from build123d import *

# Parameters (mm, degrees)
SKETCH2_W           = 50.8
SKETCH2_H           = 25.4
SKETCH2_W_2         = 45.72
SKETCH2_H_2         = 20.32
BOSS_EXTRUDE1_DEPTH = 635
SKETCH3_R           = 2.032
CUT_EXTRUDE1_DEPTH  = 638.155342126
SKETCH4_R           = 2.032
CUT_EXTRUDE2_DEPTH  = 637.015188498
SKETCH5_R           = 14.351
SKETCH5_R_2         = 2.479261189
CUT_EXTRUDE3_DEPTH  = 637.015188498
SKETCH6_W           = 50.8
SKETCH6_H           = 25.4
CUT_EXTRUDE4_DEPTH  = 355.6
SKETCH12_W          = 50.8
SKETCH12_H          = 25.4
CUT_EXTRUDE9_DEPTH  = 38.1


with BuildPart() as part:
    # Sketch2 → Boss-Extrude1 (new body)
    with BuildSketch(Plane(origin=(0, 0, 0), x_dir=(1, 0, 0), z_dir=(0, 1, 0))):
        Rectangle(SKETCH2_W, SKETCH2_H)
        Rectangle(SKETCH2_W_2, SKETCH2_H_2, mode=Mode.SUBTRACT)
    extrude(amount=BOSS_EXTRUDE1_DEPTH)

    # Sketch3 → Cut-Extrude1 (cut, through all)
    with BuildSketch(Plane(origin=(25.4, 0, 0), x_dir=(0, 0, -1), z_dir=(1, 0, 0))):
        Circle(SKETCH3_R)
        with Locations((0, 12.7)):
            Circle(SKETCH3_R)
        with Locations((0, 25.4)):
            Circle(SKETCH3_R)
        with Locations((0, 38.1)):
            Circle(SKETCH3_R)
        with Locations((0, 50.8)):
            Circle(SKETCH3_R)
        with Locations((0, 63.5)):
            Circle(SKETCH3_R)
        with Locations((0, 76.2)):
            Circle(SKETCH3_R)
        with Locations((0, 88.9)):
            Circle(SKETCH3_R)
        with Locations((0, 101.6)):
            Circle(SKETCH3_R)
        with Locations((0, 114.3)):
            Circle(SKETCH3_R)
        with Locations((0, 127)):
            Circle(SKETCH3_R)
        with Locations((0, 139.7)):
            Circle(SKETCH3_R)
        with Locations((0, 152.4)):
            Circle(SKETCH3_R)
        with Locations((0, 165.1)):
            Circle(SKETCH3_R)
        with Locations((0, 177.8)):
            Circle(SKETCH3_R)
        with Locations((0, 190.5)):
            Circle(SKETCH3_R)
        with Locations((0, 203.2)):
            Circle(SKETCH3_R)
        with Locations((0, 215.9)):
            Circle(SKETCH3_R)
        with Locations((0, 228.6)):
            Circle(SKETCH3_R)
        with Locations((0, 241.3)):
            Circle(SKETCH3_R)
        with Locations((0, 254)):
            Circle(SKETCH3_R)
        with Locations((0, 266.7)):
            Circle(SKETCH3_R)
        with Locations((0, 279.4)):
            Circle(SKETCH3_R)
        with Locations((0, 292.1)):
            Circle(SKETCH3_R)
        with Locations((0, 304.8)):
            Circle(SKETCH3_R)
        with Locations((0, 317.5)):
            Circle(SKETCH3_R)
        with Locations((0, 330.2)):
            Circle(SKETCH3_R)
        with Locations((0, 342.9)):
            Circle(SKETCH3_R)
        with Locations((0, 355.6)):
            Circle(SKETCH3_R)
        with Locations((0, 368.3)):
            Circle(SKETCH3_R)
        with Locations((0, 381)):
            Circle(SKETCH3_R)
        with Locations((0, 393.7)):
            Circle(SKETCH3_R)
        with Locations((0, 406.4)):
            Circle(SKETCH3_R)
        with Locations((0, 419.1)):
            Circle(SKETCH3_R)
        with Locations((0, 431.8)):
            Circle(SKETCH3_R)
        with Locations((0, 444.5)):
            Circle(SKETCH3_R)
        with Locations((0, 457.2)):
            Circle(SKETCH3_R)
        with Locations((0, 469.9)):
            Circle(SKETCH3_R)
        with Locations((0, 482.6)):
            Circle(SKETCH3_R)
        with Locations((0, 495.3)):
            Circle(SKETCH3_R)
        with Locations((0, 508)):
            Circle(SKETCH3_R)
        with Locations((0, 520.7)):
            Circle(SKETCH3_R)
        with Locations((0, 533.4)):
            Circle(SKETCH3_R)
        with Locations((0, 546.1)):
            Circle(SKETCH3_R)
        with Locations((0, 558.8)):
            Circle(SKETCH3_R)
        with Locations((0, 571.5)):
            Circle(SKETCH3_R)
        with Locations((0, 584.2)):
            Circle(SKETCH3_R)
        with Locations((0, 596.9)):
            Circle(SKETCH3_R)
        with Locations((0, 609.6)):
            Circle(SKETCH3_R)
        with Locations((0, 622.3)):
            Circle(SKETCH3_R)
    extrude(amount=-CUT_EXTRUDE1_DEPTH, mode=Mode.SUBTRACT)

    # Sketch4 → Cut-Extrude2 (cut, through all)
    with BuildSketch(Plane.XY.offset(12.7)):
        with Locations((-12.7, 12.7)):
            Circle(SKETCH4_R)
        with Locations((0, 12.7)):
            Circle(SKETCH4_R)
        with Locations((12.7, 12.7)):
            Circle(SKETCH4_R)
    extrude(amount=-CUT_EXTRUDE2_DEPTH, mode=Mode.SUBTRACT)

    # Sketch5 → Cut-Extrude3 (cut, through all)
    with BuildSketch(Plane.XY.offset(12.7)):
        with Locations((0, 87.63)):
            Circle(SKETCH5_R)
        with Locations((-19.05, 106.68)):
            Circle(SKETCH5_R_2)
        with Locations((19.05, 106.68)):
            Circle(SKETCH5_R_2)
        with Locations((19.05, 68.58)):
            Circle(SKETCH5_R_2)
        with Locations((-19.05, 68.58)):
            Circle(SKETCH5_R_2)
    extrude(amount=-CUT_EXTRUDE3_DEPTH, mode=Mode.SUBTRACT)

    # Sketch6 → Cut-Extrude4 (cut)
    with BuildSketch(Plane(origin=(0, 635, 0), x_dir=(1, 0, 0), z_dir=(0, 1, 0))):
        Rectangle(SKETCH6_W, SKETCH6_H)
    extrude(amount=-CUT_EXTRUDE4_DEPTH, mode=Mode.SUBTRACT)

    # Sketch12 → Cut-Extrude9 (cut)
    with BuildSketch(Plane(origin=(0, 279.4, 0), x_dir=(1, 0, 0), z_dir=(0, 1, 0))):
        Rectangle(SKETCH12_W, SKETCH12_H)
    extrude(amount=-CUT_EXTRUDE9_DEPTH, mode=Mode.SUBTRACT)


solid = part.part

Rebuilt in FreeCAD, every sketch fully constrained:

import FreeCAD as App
import Part
import Sketcher
from FreeCAD import Vector
Q = App.Units.Quantity

doc = App.newDocument("Part")
body = doc.addObject("PartDesign::Body", "Body")

sketch1 = body.newObject("Sketcher::SketchObject", "Sketch")
sketch1.AttachmentSupport = (doc.getObject("XZ_Plane"), [""])
sketch1.MapMode = "FlatFace"
sketch1.addGeometry([
    Part.LineSegment(Vector(-25, -13, 0), Vector(-25, 13, 0)),
    Part.LineSegment(Vector(-25, 13, 0), Vector(25, 13, 0)),
    Part.LineSegment(Vector(25, 13, 0), Vector(25, -13, 0)),
    Part.LineSegment(Vector(25, -13, 0), Vector(-25, -13, 0)),
    Part.LineSegment(Vector(23, 10, 0), Vector(-23, 10, 0)),
    Part.LineSegment(Vector(-23, 10, 0), Vector(-23, -10, 0)),
    Part.LineSegment(Vector(-23, -10, 0), Vector(23, -10, 0)),
    Part.LineSegment(Vector(23, -10, 0), Vector(23, 10, 0)),
], False)
sketch1.addConstraint([
    Sketcher.Constraint("Coincident", 0, 2, 1, 1),
    Sketcher.Constraint("Coincident", 1, 2, 2, 1),
    Sketcher.Constraint("Coincident", 2, 2, 3, 1),
    Sketcher.Constraint("Coincident", 3, 2, 0, 1),
    Sketcher.Constraint("Coincident", 4, 2, 5, 1),
    Sketcher.Constraint("Coincident", 5, 2, 6, 1),
    Sketcher.Constraint("Coincident", 6, 2, 7, 1),
    Sketcher.Constraint("Coincident", 7, 2, 4, 1),
    Sketcher.Constraint("Vertical", 0),
    Sketcher.Constraint("Horizontal", 1),
    Sketcher.Constraint("Vertical", 2),
    Sketcher.Constraint("Horizontal", 3),
    Sketcher.Constraint("Horizontal", 4),
    Sketcher.Constraint("Vertical", 5),
    Sketcher.Constraint("Horizontal", 6),
    Sketcher.Constraint("Vertical", 7),
    Sketcher.Constraint("Symmetric", 0, 2, 2, 2, -1, 1),
    Sketcher.Constraint("Symmetric", 4, 2, 6, 2, -1, 1),
    Sketcher.Constraint("DistanceX", 1, 1, 1, 2, Q("2 in")),
    Sketcher.Constraint("DistanceY", 0, 1, 0, 2, Q("1 in")),
    Sketcher.Constraint("DistanceX", 4, 2, 4, 1, Q("1.8 in")),
    Sketcher.Constraint("DistanceY", 5, 2, 5, 1, Q("0.8 in")),
])
pad1 = body.newObject("PartDesign::Pad", "Pad")
pad1.Profile = sketch1
pad1.Length = Q("25 in")
pad1.Reversed = True

sketch2 = body.newObject("Sketcher::SketchObject", "Sketch001")
sketch2.AttachmentSupport = (doc.getObject("YZ_Plane"), [""])
sketch2.MapMode = "FlatFace"
sketch2.AttachmentOffset = App.Placement(Vector(0, 0, 1 * 25.4), App.Rotation())
sketch2.addGeometry([
    Part.Circle(Vector(0, 0, 0), Vector(0, 0, 1), 2),
    Part.Circle(Vector(12.7, 0, 0), Vector(0, 0, 1), 2),
    Part.Circle(Vector(25.4, 0, 0), Vector(0, 0, 1), 2),
    Part.Circle(Vector(38.1, 0, 0), Vector(0, 0, 1), 2),
    Part.Circle(Vector(50.8, 0, 0), Vector(0, 0, 1), 2),
    Part.Circle(Vector(63.5, 0, 0), Vector(0, 0, 1), 2),
    Part.Circle(Vector(76.2, 0, 0), Vector(0, 0, 1), 2),
    Part.Circle(Vector(88.9, 0, 0), Vector(0, 0, 1), 2),
    Part.Circle(Vector(101.6, 0, 0), Vector(0, 0, 1), 2),
    Part.Circle(Vector(114.3, 0, 0), Vector(0, 0, 1), 2),
    Part.Circle(Vector(127, 0, 0), Vector(0, 0, 1), 2),
    Part.Circle(Vector(139.7, 0, 0), Vector(0, 0, 1), 2),
    Part.Circle(Vector(152.4, 0, 0), Vector(0, 0, 1), 2),
    Part.Circle(Vector(165.1, 0, 0), Vector(0, 0, 1), 2),
    Part.Circle(Vector(177.8, 0, 0), Vector(0, 0, 1), 2),
    Part.Circle(Vector(190.5, 0, 0), Vector(0, 0, 1), 2),
    Part.Circle(Vector(203.2, 0, 0), Vector(0, 0, 1), 2),
    Part.Circle(Vector(215.9, 0, 0), Vector(0, 0, 1), 2),
    Part.Circle(Vector(228.6, 0, 0), Vector(0, 0, 1), 2),
    Part.Circle(Vector(241.3, 0, 0), Vector(0, 0, 1), 2),
    Part.Circle(Vector(254, 0, 0), Vector(0, 0, 1), 2),
    Part.Circle(Vector(266.7, 0, 0), Vector(0, 0, 1), 2),
    Part.Circle(Vector(279.4, 0, 0), Vector(0, 0, 1), 2),
    Part.Circle(Vector(292.1, 0, 0), Vector(0, 0, 1), 2),
    Part.Circle(Vector(304.8, 0, 0), Vector(0, 0, 1), 2),
    Part.Circle(Vector(317.5, 0, 0), Vector(0, 0, 1), 2),
    Part.Circle(Vector(330.2, 0, 0), Vector(0, 0, 1), 2),
    Part.Circle(Vector(342.9, 0, 0), Vector(0, 0, 1), 2),
    Part.Circle(Vector(355.6, 0, 0), Vector(0, 0, 1), 2),
    Part.Circle(Vector(368.3, 0, 0), Vector(0, 0, 1), 2),
    Part.Circle(Vector(381, 0, 0), Vector(0, 0, 1), 2),
    Part.Circle(Vector(393.7, 0, 0), Vector(0, 0, 1), 2),
    Part.Circle(Vector(406.4, 0, 0), Vector(0, 0, 1), 2),
    Part.Circle(Vector(419.1, 0, 0), Vector(0, 0, 1), 2),
    Part.Circle(Vector(431.8, 0, 0), Vector(0, 0, 1), 2),
    Part.Circle(Vector(444.5, 0, 0), Vector(0, 0, 1), 2),
    Part.Circle(Vector(457.2, 0, 0), Vector(0, 0, 1), 2),
    Part.Circle(Vector(469.9, 0, 0), Vector(0, 0, 1), 2),
    Part.Circle(Vector(482.6, 0, 0), Vector(0, 0, 1), 2),
    Part.Circle(Vector(495.3, 0, 0), Vector(0, 0, 1), 2),
    Part.Circle(Vector(508, 0, 0), Vector(0, 0, 1), 2),
    Part.Circle(Vector(520.7, 0, 0), Vector(0, 0, 1), 2),
    Part.Circle(Vector(533.4, 0, 0), Vector(0, 0, 1), 2),
    Part.Circle(Vector(546.1, 0, 0), Vector(0, 0, 1), 2),
    Part.Circle(Vector(558.8, 0, 0), Vector(0, 0, 1), 2),
    Part.Circle(Vector(571.5, 0, 0), Vector(0, 0, 1), 2),
    Part.Circle(Vector(584.2, 0, 0), Vector(0, 0, 1), 2),
    Part.Circle(Vector(596.9, 0, 0), Vector(0, 0, 1), 2),
    Part.Circle(Vector(609.6, 0, 0), Vector(0, 0, 1), 2),
    Part.Circle(Vector(622.3, 0, 0), Vector(0, 0, 1), 2),
], False)
sketch2.addConstraint([
    Sketcher.Constraint("Coincident", 0, 3, -1, 1),
    Sketcher.Constraint("Equal", 0, 1),
    Sketcher.Constraint("Equal", 1, 2),
    Sketcher.Constraint("Equal", 2, 3),
    Sketcher.Constraint("Equal", 3, 4),
    Sketcher.Constraint("Equal", 4, 5),
    Sketcher.Constraint("Equal", 5, 6),
    Sketcher.Constraint("Equal", 6, 7),
    Sketcher.Constraint("Equal", 7, 8),
    Sketcher.Constraint("Equal", 8, 9),
    Sketcher.Constraint("Equal", 9, 10),
    Sketcher.Constraint("Equal", 10, 11),
    Sketcher.Constraint("Equal", 11, 12),
    Sketcher.Constraint("Equal", 12, 13),
    Sketcher.Constraint("Equal", 13, 14),
    Sketcher.Constraint("Equal", 14, 15),
    Sketcher.Constraint("Equal", 15, 16),
    Sketcher.Constraint("Equal", 16, 17),
    Sketcher.Constraint("Equal", 17, 18),
    Sketcher.Constraint("Equal", 18, 19),
    Sketcher.Constraint("Equal", 19, 20),
    Sketcher.Constraint("Equal", 20, 21),
    Sketcher.Constraint("Equal", 21, 22),
    Sketcher.Constraint("Equal", 22, 23),
    Sketcher.Constraint("Equal", 23, 24),
    Sketcher.Constraint("Equal", 24, 25),
    Sketcher.Constraint("Equal", 25, 26),
    Sketcher.Constraint("Equal", 26, 27),
    Sketcher.Constraint("Equal", 27, 28),
    Sketcher.Constraint("Equal", 28, 29),
    Sketcher.Constraint("Equal", 29, 30),
    Sketcher.Constraint("Equal", 30, 31),
    Sketcher.Constraint("Equal", 31, 32),
    Sketcher.Constraint("Equal", 32, 33),
    Sketcher.Constraint("Equal", 33, 34),
    Sketcher.Constraint("Equal", 34, 35),
    Sketcher.Constraint("Equal", 35, 36),
    Sketcher.Constraint("Equal", 36, 37),
    Sketcher.Constraint("Equal", 37, 38),
    Sketcher.Constraint("Equal", 38, 39),
    Sketcher.Constraint("Equal", 39, 40),
    Sketcher.Constraint("Equal", 40, 41),
    Sketcher.Constraint("Equal", 41, 42),
    Sketcher.Constraint("Equal", 42, 43),
    Sketcher.Constraint("Equal", 43, 44),
    Sketcher.Constraint("Equal", 44, 45),
    Sketcher.Constraint("Equal", 45, 46),
    Sketcher.Constraint("Equal", 46, 47),
    Sketcher.Constraint("Equal", 47, 48),
    Sketcher.Constraint("Equal", 48, 49),
    Sketcher.Constraint("PointOnObject", 1, 3, -1),
    Sketcher.Constraint("PointOnObject", 2, 3, -1),
    Sketcher.Constraint("PointOnObject", 3, 3, -1),
    Sketcher.Constraint("PointOnObject", 4, 3, -1),
    Sketcher.Constraint("PointOnObject", 5, 3, -1),
    Sketcher.Constraint("PointOnObject", 6, 3, -1),
    Sketcher.Constraint("PointOnObject", 7, 3, -1),
    Sketcher.Constraint("PointOnObject", 8, 3, -1),
    Sketcher.Constraint("PointOnObject", 9, 3, -1),
    Sketcher.Constraint("PointOnObject", 10, 3, -1),
    Sketcher.Constraint("PointOnObject", 11, 3, -1),
    Sketcher.Constraint("PointOnObject", 12, 3, -1),
    Sketcher.Constraint("PointOnObject", 13, 3, -1),
    Sketcher.Constraint("PointOnObject", 14, 3, -1),
    Sketcher.Constraint("PointOnObject", 15, 3, -1),
    Sketcher.Constraint("PointOnObject", 16, 3, -1),
    Sketcher.Constraint("PointOnObject", 17, 3, -1),
    Sketcher.Constraint("PointOnObject", 18, 3, -1),
    Sketcher.Constraint("PointOnObject", 19, 3, -1),
    Sketcher.Constraint("PointOnObject", 20, 3, -1),
    Sketcher.Constraint("PointOnObject", 21, 3, -1),
    Sketcher.Constraint("PointOnObject", 22, 3, -1),
    Sketcher.Constraint("PointOnObject", 23, 3, -1),
    Sketcher.Constraint("PointOnObject", 24, 3, -1),
    Sketcher.Constraint("PointOnObject", 25, 3, -1),
    Sketcher.Constraint("PointOnObject", 26, 3, -1),
    Sketcher.Constraint("PointOnObject", 27, 3, -1),
    Sketcher.Constraint("PointOnObject", 28, 3, -1),
    Sketcher.Constraint("PointOnObject", 29, 3, -1),
    Sketcher.Constraint("PointOnObject", 30, 3, -1),
    Sketcher.Constraint("PointOnObject", 31, 3, -1),
    Sketcher.Constraint("PointOnObject", 32, 3, -1),
    Sketcher.Constraint("PointOnObject", 33, 3, -1),
    Sketcher.Constraint("PointOnObject", 34, 3, -1),
    Sketcher.Constraint("PointOnObject", 35, 3, -1),
    Sketcher.Constraint("PointOnObject", 36, 3, -1),
    Sketcher.Constraint("PointOnObject", 37, 3, -1),
    Sketcher.Constraint("PointOnObject", 38, 3, -1),
    Sketcher.Constraint("PointOnObject", 39, 3, -1),
    Sketcher.Constraint("PointOnObject", 40, 3, -1),
    Sketcher.Constraint("PointOnObject", 41, 3, -1),
    Sketcher.Constraint("PointOnObject", 42, 3, -1),
    Sketcher.Constraint("PointOnObject", 43, 3, -1),
    Sketcher.Constraint("PointOnObject", 44, 3, -1),
    Sketcher.Constraint("PointOnObject", 45, 3, -1),
    Sketcher.Constraint("PointOnObject", 46, 3, -1),
    Sketcher.Constraint("PointOnObject", 47, 3, -1),
    Sketcher.Constraint("PointOnObject", 48, 3, -1),
    Sketcher.Constraint("PointOnObject", 49, 3, -1),
    Sketcher.Constraint("Diameter", 0, Q("0.16 in")),
    Sketcher.Constraint("DistanceX", -1, 1, 2, 3, Q("1 in")),
    Sketcher.Constraint("DistanceX", -1, 1, 4, 3, Q("2 in")),
    Sketcher.Constraint("DistanceX", -1, 1, 6, 3, Q("3 in")),
    Sketcher.Constraint("DistanceX", -1, 1, 8, 3, Q("4 in")),
    Sketcher.Constraint("DistanceX", -1, 1, 10, 3, Q("5 in")),
    Sketcher.Constraint("DistanceX", -1, 1, 12, 3, Q("6 in")),
    Sketcher.Constraint("DistanceX", -1, 1, 14, 3, Q("7 in")),
    Sketcher.Constraint("DistanceX", -1, 1, 16, 3, Q("8 in")),
    Sketcher.Constraint("DistanceX", -1, 1, 18, 3, Q("9 in")),
    Sketcher.Constraint("DistanceX", -1, 1, 20, 3, Q("10 in")),
    Sketcher.Constraint("DistanceX", -1, 1, 22, 3, Q("11 in")),
    Sketcher.Constraint("DistanceX", -1, 1, 24, 3, Q("12 in")),
    Sketcher.Constraint("DistanceX", -1, 1, 26, 3, Q("13 in")),
    Sketcher.Constraint("DistanceX", -1, 1, 28, 3, Q("14 in")),
    Sketcher.Constraint("DistanceX", -1, 1, 30, 3, Q("15 in")),
    Sketcher.Constraint("DistanceX", -1, 1, 32, 3, Q("16 in")),
    Sketcher.Constraint("DistanceX", -1, 1, 34, 3, Q("17 in")),
    Sketcher.Constraint("DistanceX", -1, 1, 36, 3, Q("18 in")),
    Sketcher.Constraint("DistanceX", -1, 1, 38, 3, Q("19 in")),
    Sketcher.Constraint("DistanceX", -1, 1, 40, 3, Q("20 in")),
    Sketcher.Constraint("DistanceX", -1, 1, 42, 3, Q("21 in")),
    Sketcher.Constraint("DistanceX", -1, 1, 44, 3, Q("22 in")),
    Sketcher.Constraint("DistanceX", -1, 1, 46, 3, Q("23 in")),
    Sketcher.Constraint("DistanceX", -1, 1, 48, 3, Q("24 in")),
    Sketcher.Constraint("DistanceX", 1, 3, 3, 3, Q("1 in")),
    Sketcher.Constraint("DistanceX", 3, 3, 5, 3, Q("1 in")),
    Sketcher.Constraint("DistanceX", 5, 3, 7, 3, Q("1 in")),
    Sketcher.Constraint("DistanceX", 7, 3, 9, 3, Q("1 in")),
    Sketcher.Constraint("DistanceX", 9, 3, 11, 3, Q("1 in")),
    Sketcher.Constraint("DistanceX", 11, 3, 13, 3, Q("1 in")),
    Sketcher.Constraint("DistanceX", 13, 3, 15, 3, Q("1 in")),
    Sketcher.Constraint("DistanceX", 15, 3, 17, 3, Q("1 in")),
    Sketcher.Constraint("DistanceX", 17, 3, 19, 3, Q("1 in")),
    Sketcher.Constraint("DistanceX", 19, 3, 21, 3, Q("1 in")),
    Sketcher.Constraint("DistanceX", 21, 3, 23, 3, Q("1 in")),
    Sketcher.Constraint("DistanceX", 23, 3, 25, 3, Q("1 in")),
    Sketcher.Constraint("DistanceX", 25, 3, 27, 3, Q("1 in")),
    Sketcher.Constraint("DistanceX", 27, 3, 29, 3, Q("1 in")),
    Sketcher.Constraint("DistanceX", 29, 3, 31, 3, Q("1 in")),
    Sketcher.Constraint("DistanceX", 31, 3, 33, 3, Q("1 in")),
    Sketcher.Constraint("DistanceX", 33, 3, 35, 3, Q("1 in")),
    Sketcher.Constraint("DistanceX", 35, 3, 37, 3, Q("1 in")),
    Sketcher.Constraint("DistanceX", 37, 3, 39, 3, Q("1 in")),
    Sketcher.Constraint("DistanceX", 39, 3, 41, 3, Q("1 in")),
    Sketcher.Constraint("DistanceX", 41, 3, 43, 3, Q("1 in")),
    Sketcher.Constraint("DistanceX", 43, 3, 45, 3, Q("1 in")),
    Sketcher.Constraint("DistanceX", 45, 3, 47, 3, Q("1 in")),
    Sketcher.Constraint("DistanceX", 47, 3, 49, 3, Q("1 in")),
    Sketcher.Constraint("DistanceX", -1, 1, 1, 3, Q("0.5 in")),
])
pocket1 = body.newObject("PartDesign::Pocket", "Pocket")
pocket1.Profile = sketch2
pocket1.Type = "ThroughAll"

sketch3 = body.newObject("Sketcher::SketchObject", "Sketch002")
sketch3.AttachmentSupport = (doc.getObject("XY_Plane"), [""])
sketch3.MapMode = "FlatFace"
sketch3.AttachmentOffset = App.Placement(Vector(0, 0, 0.5 * 25.4), App.Rotation())
sketch3.addGeometry([
    Part.Circle(Vector(-12.7, 12.7, 0), Vector(0, 0, 1), 2),
    Part.Circle(Vector(0, 12.7, 0), Vector(0, 0, 1), 2),
    Part.Circle(Vector(12.7, 12.7, 0), Vector(0, 0, 1), 2),
], False)
sketch3.addConstraint([
    Sketcher.Constraint("Equal", 0, 1),
    Sketcher.Constraint("Equal", 1, 2),
    Sketcher.Constraint("Symmetric", 0, 3, 2, 3, -2),
    Sketcher.Constraint("PointOnObject", 1, 3, -2),
    Sketcher.Constraint("Horizontal", 0, 3, 1, 3),
    Sketcher.Constraint("Diameter", 0, Q("0.16 in")),
    Sketcher.Constraint("DistanceX", 0, 3, 2, 3, Q("1 in")),
    Sketcher.Constraint("DistanceY", -1, 1, 0, 3, Q("0.5 in")),
])
pocket2 = body.newObject("PartDesign::Pocket", "Pocket001")
pocket2.Profile = sketch3
pocket2.Type = "ThroughAll"

sketch4 = body.newObject("Sketcher::SketchObject", "Sketch003")
sketch4.AttachmentSupport = (doc.getObject("XY_Plane"), [""])
sketch4.MapMode = "FlatFace"
sketch4.AttachmentOffset = App.Placement(Vector(0, 0, 0.5 * 25.4), App.Rotation())
sketch4.addGeometry([
    Part.Circle(Vector(0, 87.6, 0), Vector(0, 0, 1), 14.4),
    Part.Circle(Vector(-19.1, 106.7, 0), Vector(0, 0, 1), 2.5),
    Part.Circle(Vector(19.1, 106.7, 0), Vector(0, 0, 1), 2.5),
    Part.Circle(Vector(19.1, 68.6, 0), Vector(0, 0, 1), 2.5),
    Part.Circle(Vector(-19.1, 68.6, 0), Vector(0, 0, 1), 2.5),
], False)
sketch4.addConstraint([
    Sketcher.Constraint("Equal", 1, 2),
    Sketcher.Constraint("Equal", 2, 3),
    Sketcher.Constraint("Equal", 3, 4),
    Sketcher.Constraint("Symmetric", 1, 3, 2, 3, -2),
    Sketcher.Constraint("Symmetric", 3, 3, 4, 3, -2),
    Sketcher.Constraint("PointOnObject", 0, 3, -2),
    Sketcher.Constraint("Vertical", 2, 3, 3, 3),
    Sketcher.Constraint("Diameter", 0, Q("1.13 in")),
    Sketcher.Constraint("DistanceY", -1, 1, 1, 3, Q("4.2 in")),
    Sketcher.Constraint("DistanceY", -1, 1, 3, 3, Q("2.7 in")),
    Sketcher.Constraint("DistanceX", 1, 3, 2, 3, Q("1.5 in")),
    Sketcher.Constraint("DistanceY", -1, 1, 0, 3, Q("3.45 in")),
    Sketcher.Constraint("Diameter", 1, 4.958522),
])
pocket3 = body.newObject("PartDesign::Pocket", "Pocket002")
pocket3.Profile = sketch4
pocket3.Type = "ThroughAll"

sketch5 = body.newObject("Sketcher::SketchObject", "Sketch004")
sketch5.AttachmentSupport = (doc.getObject("XZ_Plane"), [""])
sketch5.MapMode = "FlatFace"
sketch5.AttachmentOffset = App.Placement(Vector(0, 0, -25 * 25.4), App.Rotation())
sketch5.addGeometry([
    Part.LineSegment(Vector(-25, -13, 0), Vector(-25, 13, 0)),
    Part.LineSegment(Vector(-25, 13, 0), Vector(25, 13, 0)),
    Part.LineSegment(Vector(25, 13, 0), Vector(25, -13, 0)),
    Part.LineSegment(Vector(25, -13, 0), Vector(-25, -13, 0)),
], False)
sketch5.addConstraint([
    Sketcher.Constraint("Coincident", 0, 2, 1, 1),
    Sketcher.Constraint("Coincident", 1, 2, 2, 1),
    Sketcher.Constraint("Coincident", 2, 2, 3, 1),
    Sketcher.Constraint("Coincident", 3, 2, 0, 1),
    Sketcher.Constraint("Vertical", 0),
    Sketcher.Constraint("Horizontal", 1),
    Sketcher.Constraint("Vertical", 2),
    Sketcher.Constraint("Horizontal", 3),
    Sketcher.Constraint("Symmetric", 0, 2, 2, 2, -1, 1),
    Sketcher.Constraint("DistanceX", 1, 1, 1, 2, Q("2 in")),
    Sketcher.Constraint("DistanceY", 0, 1, 0, 2, Q("1 in")),
])
pocket4 = body.newObject("PartDesign::Pocket", "Pocket003")
pocket4.Profile = sketch5
pocket4.Length = Q("14 in")
pocket4.Reversed = True

sketch6 = body.newObject("Sketcher::SketchObject", "Sketch005")
sketch6.AttachmentSupport = (doc.getObject("XZ_Plane"), [""])
sketch6.MapMode = "FlatFace"
sketch6.AttachmentOffset = App.Placement(Vector(0, 0, -11 * 25.4), App.Rotation())
sketch6.addGeometry([
    Part.LineSegment(Vector(-25, -13, 0), Vector(-25, 13, 0)),
    Part.LineSegment(Vector(-25, 13, 0), Vector(25, 13, 0)),
    Part.LineSegment(Vector(25, 13, 0), Vector(25, -13, 0)),
    Part.LineSegment(Vector(25, -13, 0), Vector(-25, -13, 0)),
], False)
sketch6.addConstraint([
    Sketcher.Constraint("Coincident", 0, 2, 1, 1),
    Sketcher.Constraint("Coincident", 1, 2, 2, 1),
    Sketcher.Constraint("Coincident", 2, 2, 3, 1),
    Sketcher.Constraint("Coincident", 3, 2, 0, 1),
    Sketcher.Constraint("Vertical", 0),
    Sketcher.Constraint("Horizontal", 1),
    Sketcher.Constraint("Vertical", 2),
    Sketcher.Constraint("Horizontal", 3),
    Sketcher.Constraint("Symmetric", 0, 2, 2, 2, -1, 1),
    Sketcher.Constraint("DistanceX", 1, 1, 1, 2, Q("2 in")),
    Sketcher.Constraint("DistanceY", 0, 1, 0, 2, Q("1 in")),
])
pocket5 = body.newObject("PartDesign::Pocket", "Pocket004")
pocket5.Profile = sketch6
pocket5.Length = Q("1.5 in")
pocket5.Reversed = True

doc.recompute()
